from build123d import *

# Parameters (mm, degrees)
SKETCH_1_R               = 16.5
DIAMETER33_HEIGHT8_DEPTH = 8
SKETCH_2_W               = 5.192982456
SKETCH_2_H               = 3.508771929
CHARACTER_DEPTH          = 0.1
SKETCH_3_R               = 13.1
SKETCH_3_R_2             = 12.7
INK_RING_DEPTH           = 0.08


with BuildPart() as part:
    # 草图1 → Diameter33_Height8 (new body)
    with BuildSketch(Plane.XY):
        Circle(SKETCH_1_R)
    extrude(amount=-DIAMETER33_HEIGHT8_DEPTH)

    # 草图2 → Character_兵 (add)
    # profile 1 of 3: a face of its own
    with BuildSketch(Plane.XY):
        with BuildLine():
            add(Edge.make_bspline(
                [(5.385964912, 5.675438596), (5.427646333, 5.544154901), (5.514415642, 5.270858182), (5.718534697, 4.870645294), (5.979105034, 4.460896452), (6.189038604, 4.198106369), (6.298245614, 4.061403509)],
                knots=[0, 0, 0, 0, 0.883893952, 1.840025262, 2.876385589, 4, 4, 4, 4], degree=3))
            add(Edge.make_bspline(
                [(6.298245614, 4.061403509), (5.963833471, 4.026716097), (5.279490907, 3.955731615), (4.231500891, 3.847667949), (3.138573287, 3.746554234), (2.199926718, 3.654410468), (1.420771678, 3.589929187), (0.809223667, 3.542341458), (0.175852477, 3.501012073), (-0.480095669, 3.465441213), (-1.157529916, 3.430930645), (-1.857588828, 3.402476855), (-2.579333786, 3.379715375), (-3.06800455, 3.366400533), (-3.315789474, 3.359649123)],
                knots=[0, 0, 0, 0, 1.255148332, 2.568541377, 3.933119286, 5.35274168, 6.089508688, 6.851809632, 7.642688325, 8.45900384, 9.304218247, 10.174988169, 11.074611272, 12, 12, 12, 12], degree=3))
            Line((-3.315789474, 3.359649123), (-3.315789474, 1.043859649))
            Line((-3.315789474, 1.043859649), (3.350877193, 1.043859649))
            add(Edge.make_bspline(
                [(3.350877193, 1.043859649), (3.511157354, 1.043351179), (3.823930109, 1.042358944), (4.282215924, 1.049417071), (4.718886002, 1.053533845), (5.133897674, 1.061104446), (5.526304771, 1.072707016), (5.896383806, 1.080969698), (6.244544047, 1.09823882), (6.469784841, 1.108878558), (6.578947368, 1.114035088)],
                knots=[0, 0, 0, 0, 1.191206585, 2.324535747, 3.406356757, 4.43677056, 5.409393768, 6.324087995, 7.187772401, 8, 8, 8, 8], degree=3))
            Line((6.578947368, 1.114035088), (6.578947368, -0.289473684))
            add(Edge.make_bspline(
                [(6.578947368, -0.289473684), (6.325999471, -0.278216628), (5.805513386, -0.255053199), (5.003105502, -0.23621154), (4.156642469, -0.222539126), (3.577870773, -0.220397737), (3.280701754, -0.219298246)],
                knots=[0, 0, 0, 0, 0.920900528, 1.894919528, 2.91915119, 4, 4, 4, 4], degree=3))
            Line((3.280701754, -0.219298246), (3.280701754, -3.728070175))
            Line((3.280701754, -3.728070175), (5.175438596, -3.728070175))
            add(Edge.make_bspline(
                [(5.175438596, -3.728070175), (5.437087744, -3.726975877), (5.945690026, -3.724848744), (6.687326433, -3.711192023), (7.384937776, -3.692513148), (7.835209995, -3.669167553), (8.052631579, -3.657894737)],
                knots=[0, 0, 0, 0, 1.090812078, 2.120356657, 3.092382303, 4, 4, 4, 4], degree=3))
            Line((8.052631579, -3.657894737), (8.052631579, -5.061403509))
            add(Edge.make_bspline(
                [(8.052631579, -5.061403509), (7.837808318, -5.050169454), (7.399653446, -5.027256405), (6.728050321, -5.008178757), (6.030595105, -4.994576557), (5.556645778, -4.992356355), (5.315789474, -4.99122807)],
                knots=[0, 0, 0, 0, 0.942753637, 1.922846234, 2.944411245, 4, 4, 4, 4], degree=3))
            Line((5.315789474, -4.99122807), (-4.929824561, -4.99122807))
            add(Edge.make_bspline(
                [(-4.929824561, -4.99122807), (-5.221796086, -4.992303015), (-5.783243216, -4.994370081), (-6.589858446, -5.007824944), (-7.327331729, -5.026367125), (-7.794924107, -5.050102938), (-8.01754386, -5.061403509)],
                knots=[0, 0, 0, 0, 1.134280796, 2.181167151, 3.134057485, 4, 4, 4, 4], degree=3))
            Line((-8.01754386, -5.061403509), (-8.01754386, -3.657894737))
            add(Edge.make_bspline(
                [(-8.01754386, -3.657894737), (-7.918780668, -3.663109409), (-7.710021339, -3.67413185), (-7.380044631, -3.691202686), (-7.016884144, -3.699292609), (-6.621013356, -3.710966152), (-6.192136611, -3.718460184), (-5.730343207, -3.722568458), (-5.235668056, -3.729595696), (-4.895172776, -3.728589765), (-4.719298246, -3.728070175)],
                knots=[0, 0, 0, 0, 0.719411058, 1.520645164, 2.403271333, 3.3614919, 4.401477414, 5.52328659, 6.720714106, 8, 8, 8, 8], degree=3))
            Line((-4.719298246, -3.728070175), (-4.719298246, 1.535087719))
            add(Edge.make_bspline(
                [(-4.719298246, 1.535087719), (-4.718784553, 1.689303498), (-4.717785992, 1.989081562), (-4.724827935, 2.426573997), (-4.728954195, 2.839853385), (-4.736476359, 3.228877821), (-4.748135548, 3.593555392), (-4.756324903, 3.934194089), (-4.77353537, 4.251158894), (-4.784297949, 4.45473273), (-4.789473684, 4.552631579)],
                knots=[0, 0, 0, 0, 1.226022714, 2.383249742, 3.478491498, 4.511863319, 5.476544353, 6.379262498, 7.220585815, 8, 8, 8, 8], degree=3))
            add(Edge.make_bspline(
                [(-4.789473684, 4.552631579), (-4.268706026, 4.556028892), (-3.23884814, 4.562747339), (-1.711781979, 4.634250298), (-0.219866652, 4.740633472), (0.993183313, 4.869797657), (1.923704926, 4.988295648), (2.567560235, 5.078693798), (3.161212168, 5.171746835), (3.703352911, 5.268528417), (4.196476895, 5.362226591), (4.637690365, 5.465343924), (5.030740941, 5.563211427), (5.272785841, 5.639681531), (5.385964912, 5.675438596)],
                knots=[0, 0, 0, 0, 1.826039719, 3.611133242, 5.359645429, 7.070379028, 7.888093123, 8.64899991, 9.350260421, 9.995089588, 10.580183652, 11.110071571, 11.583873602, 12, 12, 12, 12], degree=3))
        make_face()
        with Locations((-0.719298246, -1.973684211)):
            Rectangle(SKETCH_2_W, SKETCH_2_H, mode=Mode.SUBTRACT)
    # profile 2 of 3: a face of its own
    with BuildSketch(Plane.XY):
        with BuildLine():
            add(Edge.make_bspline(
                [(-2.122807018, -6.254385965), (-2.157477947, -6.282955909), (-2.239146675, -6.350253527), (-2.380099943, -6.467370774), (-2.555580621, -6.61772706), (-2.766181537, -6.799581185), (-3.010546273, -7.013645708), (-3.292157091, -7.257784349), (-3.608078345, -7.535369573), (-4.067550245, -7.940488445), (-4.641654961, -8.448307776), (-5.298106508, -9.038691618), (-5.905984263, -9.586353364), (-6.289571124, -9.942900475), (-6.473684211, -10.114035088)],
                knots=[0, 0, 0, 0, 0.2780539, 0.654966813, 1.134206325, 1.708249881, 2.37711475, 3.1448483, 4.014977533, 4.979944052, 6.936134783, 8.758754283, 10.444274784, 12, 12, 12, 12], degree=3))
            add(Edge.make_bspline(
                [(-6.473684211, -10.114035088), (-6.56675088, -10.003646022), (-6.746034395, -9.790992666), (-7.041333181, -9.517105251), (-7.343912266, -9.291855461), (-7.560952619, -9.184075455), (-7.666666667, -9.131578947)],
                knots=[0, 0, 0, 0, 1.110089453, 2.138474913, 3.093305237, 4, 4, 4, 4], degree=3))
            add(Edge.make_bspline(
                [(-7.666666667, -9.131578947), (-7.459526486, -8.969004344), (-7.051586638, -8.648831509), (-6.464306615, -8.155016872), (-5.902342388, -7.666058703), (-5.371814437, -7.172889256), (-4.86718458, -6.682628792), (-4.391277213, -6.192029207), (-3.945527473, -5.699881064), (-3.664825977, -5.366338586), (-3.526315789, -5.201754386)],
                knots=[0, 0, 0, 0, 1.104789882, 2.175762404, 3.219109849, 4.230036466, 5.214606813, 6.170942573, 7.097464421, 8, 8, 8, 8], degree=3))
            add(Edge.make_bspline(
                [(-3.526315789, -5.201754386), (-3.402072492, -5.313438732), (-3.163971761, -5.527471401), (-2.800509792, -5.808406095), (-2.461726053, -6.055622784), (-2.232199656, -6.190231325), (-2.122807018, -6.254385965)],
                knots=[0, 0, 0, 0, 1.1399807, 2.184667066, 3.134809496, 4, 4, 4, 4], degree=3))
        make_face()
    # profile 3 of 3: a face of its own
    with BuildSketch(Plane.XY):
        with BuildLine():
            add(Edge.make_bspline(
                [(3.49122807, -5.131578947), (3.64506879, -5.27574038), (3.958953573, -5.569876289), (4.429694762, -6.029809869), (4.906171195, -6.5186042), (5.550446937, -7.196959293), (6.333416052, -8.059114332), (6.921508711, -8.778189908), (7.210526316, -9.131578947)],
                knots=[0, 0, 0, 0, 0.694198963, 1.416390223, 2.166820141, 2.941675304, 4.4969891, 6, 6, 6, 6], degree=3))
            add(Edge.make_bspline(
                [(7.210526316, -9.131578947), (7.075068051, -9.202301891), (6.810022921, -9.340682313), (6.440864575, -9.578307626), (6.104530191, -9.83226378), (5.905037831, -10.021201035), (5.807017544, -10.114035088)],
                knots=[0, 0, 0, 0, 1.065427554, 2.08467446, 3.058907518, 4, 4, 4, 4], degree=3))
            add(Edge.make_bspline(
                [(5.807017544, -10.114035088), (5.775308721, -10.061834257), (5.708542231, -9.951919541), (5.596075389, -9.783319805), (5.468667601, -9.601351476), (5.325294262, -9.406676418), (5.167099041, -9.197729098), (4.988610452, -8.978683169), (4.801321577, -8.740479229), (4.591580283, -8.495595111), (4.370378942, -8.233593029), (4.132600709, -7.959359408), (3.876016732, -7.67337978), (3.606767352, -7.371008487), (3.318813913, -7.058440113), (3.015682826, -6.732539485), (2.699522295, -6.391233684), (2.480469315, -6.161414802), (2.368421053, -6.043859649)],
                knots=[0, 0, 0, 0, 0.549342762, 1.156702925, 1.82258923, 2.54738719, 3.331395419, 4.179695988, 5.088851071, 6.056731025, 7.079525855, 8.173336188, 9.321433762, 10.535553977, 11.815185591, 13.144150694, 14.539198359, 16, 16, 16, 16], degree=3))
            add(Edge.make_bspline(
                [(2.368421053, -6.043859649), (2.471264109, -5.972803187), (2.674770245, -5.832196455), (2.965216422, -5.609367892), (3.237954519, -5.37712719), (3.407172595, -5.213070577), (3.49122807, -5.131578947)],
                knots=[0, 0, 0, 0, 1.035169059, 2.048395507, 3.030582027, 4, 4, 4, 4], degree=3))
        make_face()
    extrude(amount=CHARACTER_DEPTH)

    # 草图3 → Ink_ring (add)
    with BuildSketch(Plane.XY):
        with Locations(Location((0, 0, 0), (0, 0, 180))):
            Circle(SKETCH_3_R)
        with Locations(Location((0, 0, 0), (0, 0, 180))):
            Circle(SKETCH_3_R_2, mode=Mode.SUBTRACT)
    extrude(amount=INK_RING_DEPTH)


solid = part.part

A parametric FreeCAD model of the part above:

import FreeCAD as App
import Part
import Sketcher

V = App.Vector
Q = App.Units.Quantity

doc = App.newDocument("Part")
params = doc.addObject("Spreadsheet::Sheet", "Params")
for row, (alias, value) in enumerate([
    ("sketch1_diameter", "33 mm"),
    ("pad1_length", "8 mm"),
    ("pad2_length", "0.1 mm"),
    ("sketch3_diameter", "26.2 mm"),
    ("sketch3_diameter2", "25.4 mm"),
    ("pad3_length", "0.08 mm"),
], start=1):
    params.set(f"A{row}", alias)
    params.set(f"B{row}", "=" + value)
    params.setAlias(f"B{row}", alias)

body = doc.addObject("PartDesign::Body", "Body")

sketch1 = doc.addObject("Sketcher::SketchObject", "Sketch")
body.addObject(sketch1)
sketch1.AttachmentSupport = (doc.XY_Plane, [""])
sketch1.MapMode = "FlatFace"
sketch1.addGeometry(Part.Circle(V(0, 0, 0), V(0, 0, 1), 16), False)
sketch1.addConstraint([
    Sketcher.Constraint("Coincident", 0, 3, -1, 1),
    Sketcher.Constraint("Diameter", 0, Q("33 mm")),
])
sketch1.setExpression("Constraints[1]", "Params.sketch1_diameter")
pad1 = doc.addObject("PartDesign::Pad", "Pad")
body.addObject(pad1)
pad1.Profile = sketch1
pad1.setExpression("Length", "Params.pad1_length")
pad1.Reversed = True

sketch2 = doc.addObject("Sketcher::SketchObject", "Sketch001")
body.addObject(sketch2)
sketch2.AttachmentSupport = (doc.XY_Plane, [""])
sketch2.MapMode = "FlatFace"
sketch2.addGeometry([
    Part.BSplineCurve([V(5.385965, 5.675439, 0), V(5.427646, 5.544155, 0), V(5.514416, 5.270858, 0), V(5.718535, 4.870645, 0), V(5.979105, 4.460896, 0), V(6.189039, 4.198106, 0), V(6.298246, 4.061404, 0)], [4, 1, 1, 1, 4], [0, 0.883893952, 1.840025262, 2.876385589, 4], False, 3, [1, 1, 1, 1, 1, 1, 1], False),
    Part.BSplineCurve([V(-4.789474, 4.552632, 0), V(-4.268706, 4.556029, 0), V(-3.238848, 4.562747, 0), V(-1.711782, 4.63425, 0), V(-0.219867, 4.740633, 0), V(0.993183, 4.869798, 0), V(1.923705, 4.988296, 0), V(2.56756, 5.078694, 0), V(3.161212, 5.171747, 0), V(3.703353, 5.268528, 0), V(4.196477, 5.362227, 0), V(4.63769, 5.465344, 0), V(5.030741, 5.563211, 0), V(5.272786, 5.639682, 0), V(5.385965, 5.675439, 0)], [4, 1, 1, 1, 1, 1, 1, 1, 1, 1, 1, 1, 4], [0, 1.826039719, 3.611133242, 5.359645429, 7.070379028, 7.888093123, 8.64899991, 9.350260421, 9.995089588, 10.580183652, 11.110071571, 11.583873602, 12], False, 3, [1, 1, 1, 1, 1, 1, 1, 1, 1, 1, 1, 1, 1, 1, 1], False),
    Part.BSplineCurve([V(-4.719298, 1.535088, 0), V(-4.718785, 1.689303, 0), V(-4.717786, 1.989082, 0), V(-4.724828, 2.426574, 0), V(-4.728954, 2.839853, 0), V(-4.736476, 3.228878, 0), V(-4.748136, 3.593555, 0), V(-4.756325, 3.934194, 0), V(-4.773535, 4.251159, 0), V(-4.784298, 4.454733, 0), V(-4.789474, 4.552632, 0)], [4, 1, 1, 1, 1, 1, 1, 1, 4], [0, 1.226022714, 2.383249742, 3.478491498, 4.511863319, 5.476544353, 6.379262498, 7.220585815, 8], False, 3, [1, 1, 1, 1, 1, 1, 1, 1, 1, 1, 1], False),
    Part.LineSegment(V(-4.719298, 1.535088, 0), V(-4.719298, -3.72807, 0)),
    Part.BSplineCurve([V(-8.017544, -3.657895, 0), V(-7.918781, -3.663109, 0), V(-7.710021, -3.674132, 0), V(-7.380045, -3.691203, 0), V(-7.016884, -3.699293, 0), V(-6.621013, -3.710966, 0), V(-6.192137, -3.71846, 0), V(-5.730343, -3.722568, 0), V(-5.235668, -3.729596, 0), V(-4.895173, -3.72859, 0), V(-4.719298, -3.72807, 0)], [4, 1, 1, 1, 1, 1, 1, 1, 4], [0, 0.719411058, 1.520645164, 2.403271333, 3.3614919, 4.401477414, 5.52328659, 6.720714106, 8], False, 3, [1, 1, 1, 1, 1, 1, 1, 1, 1, 1, 1], False),
    Part.LineSegment(V(-8.017544, -3.657895, 0), V(-8.017544, -5.061404, 0)),
    Part.BSplineCurve([V(-4.929825, -4.991228, 0), V(-5.221796, -4.992303, 0), V(-5.783243, -4.99437, 0), V(-6.589858, -5.007825, 0), V(-7.327332, -5.026367, 0), V(-7.794924, -5.050103, 0), V(-8.017544, -5.061404, 0)], [4, 1, 1, 1, 4], [0, 1.134280796, 2.181167151, 3.134057485, 4], False, 3, [1, 1, 1, 1, 1, 1, 1], False),
    Part.LineSegment(V(-4.929825, -4.991228, 0), V(5.315789, -4.991228, 0)),
    Part.BSplineCurve([V(8.052632, -5.061404, 0), V(7.837808, -5.050169, 0), V(7.399653, -5.027256, 0), V(6.72805, -5.008179, 0), V(6.030595, -4.994577, 0), V(5.556646, -4.992356, 0), V(5.315789, -4.991228, 0)], [4, 1, 1, 1, 4], [0, 0.942753637, 1.922846234, 2.944411245, 4], False, 3, [1, 1, 1, 1, 1, 1, 1], False),
    Part.LineSegment(V(8.052632, -5.061404, 0), V(8.052632, -3.657895, 0)),
    Part.BSplineCurve([V(5.175439, -3.72807, 0), V(5.437088, -3.726976, 0), V(5.94569, -3.724849, 0), V(6.687326, -3.711192, 0), V(7.384938, -3.692513, 0), V(7.83521, -3.669168, 0), V(8.052632, -3.657895, 0)], [4, 1, 1, 1, 4], [0, 1.090812078, 2.120356657, 3.092382303, 4], False, 3, [1, 1, 1, 1, 1, 1, 1], False),
    Part.LineSegment(V(5.175439, -3.72807, 0), V(3.280702, -3.72807, 0)),
    Part.LineSegment(V(3.280702, -3.72807, 0), V(3.280702, -0.219298, 0)),
    Part.BSplineCurve([V(6.578947, -0.289474, 0), V(6.325999, -0.278217, 0), V(5.805513, -0.255053, 0), V(5.003106, -0.236212, 0), V(4.156642, -0.222539, 0), V(3.577871, -0.220398, 0), V(3.280702, -0.219298, 0)], [4, 1, 1, 1, 4], [0, 0.920900528, 1.894919528, 2.91915119, 4], False, 3, [1, 1, 1, 1, 1, 1, 1], False),
    Part.LineSegment(V(6.578947, -0.289474, 0), V(6.578947, 1.114035, 0)),
    Part.BSplineCurve([V(3.350877, 1.04386, 0), V(3.511157, 1.043351, 0), V(3.82393, 1.042359, 0), V(4.282216, 1.049417, 0), V(4.718886, 1.053534, 0), V(5.133898, 1.061104, 0), V(5.526305, 1.072707, 0), V(5.896384, 1.08097, 0), V(6.244544, 1.098239, 0), V(6.469785, 1.108879, 0), V(6.578947, 1.114035, 0)], [4, 1, 1, 1, 1, 1, 1, 1, 4], [0, 1.191206585, 2.324535747, 3.406356757, 4.43677056, 5.409393768, 6.324087995, 7.187772401, 8], False, 3, [1, 1, 1, 1, 1, 1, 1, 1, 1, 1, 1], False),
    Part.LineSegment(V(3.350877, 1.04386, 0), V(-3.315789, 1.04386, 0)),
    Part.LineSegment(V(-3.315789, 1.04386, 0), V(-3.315789, 3.359649, 0)),
    Part.BSplineCurve([V(6.298246, 4.061404, 0), V(5.963833, 4.026716, 0), V(5.279491, 3.955732, 0), V(4.231501, 3.847668, 0), V(3.138573, 3.746554, 0), V(2.199927, 3.65441, 0), V(1.420772, 3.589929, 0), V(0.809224, 3.542341, 0), V(0.175852, 3.501012, 0), V(-0.480096, 3.465441, 0), V(-1.15753, 3.430931, 0), V(-1.857589, 3.402477, 0), V(-2.579334, 3.379715, 0), V(-3.068005, 3.366401, 0), V(-3.315789, 3.359649, 0)], [4, 1, 1, 1, 1, 1, 1, 1, 1, 1, 1, 1, 4], [0, 1.255148332, 2.568541377, 3.933119286, 5.35274168, 6.089508688, 6.851809632, 7.642688325, 8.45900384, 9.304218247, 10.174988169, 11.074611272, 12], False, 3, [1, 1, 1, 1, 1, 1, 1, 1, 1, 1, 1, 1, 1, 1, 1], False),
    Part.LineSegment(V(-3.315789, -3.72807, 0), V(-3.315789, -0.219298, 0)),
    Part.LineSegment(V(-3.315789, -0.219298, 0), V(1.877193, -0.219298, 0)),
    Part.LineSegment(V(1.877193, -0.219298, 0), V(1.877193, -3.72807, 0)),
    Part.LineSegment(V(1.877193, -3.72807, 0), V(-3.315789, -3.72807, 0)),
    Part.BSplineCurve([V(-2.122807, -6.254386, 0), V(-2.157478, -6.282956, 0), V(-2.239147, -6.350254, 0), V(-2.3801, -6.467371, 0), V(-2.555581, -6.617727, 0), V(-2.766182, -6.799581, 0), V(-3.010546, -7.013646, 0), V(-3.292157, -7.257784, 0), V(-3.608078, -7.53537, 0), V(-4.06755, -7.940488, 0), V(-4.641655, -8.448308, 0), V(-5.298107, -9.038692, 0), V(-5.905984, -9.586353, 0), V(-6.289571, -9.9429, 0), V(-6.473684, -10.114035, 0)], [4, 1, 1, 1, 1, 1, 1, 1, 1, 1, 1, 1, 4], [0, 0.2780539, 0.654966813, 1.134206325, 1.708249881, 2.37711475, 3.1448483, 4.014977533, 4.979944052, 6.936134783, 8.758754283, 10.444274784, 12], False, 3, [1, 1, 1, 1, 1, 1, 1, 1, 1, 1, 1, 1, 1, 1, 1], False),
    Part.BSplineCurve([V(-3.526316, -5.201754, 0), V(-3.402072, -5.313439, 0), V(-3.163972, -5.527471, 0), V(-2.80051, -5.808406, 0), V(-2.461726, -6.055623, 0), V(-2.2322, -6.190231, 0), V(-2.122807, -6.254386, 0)], [4, 1, 1, 1, 4], [0, 1.1399807, 2.184667066, 3.134809496, 4], False, 3, [1, 1, 1, 1, 1, 1, 1], False),
    Part.BSplineCurve([V(-7.666667, -9.131579, 0), V(-7.459526, -8.969004, 0), V(-7.051587, -8.648832, 0), V(-6.464307, -8.155017, 0), V(-5.902342, -7.666059, 0), V(-5.371814, -7.172889, 0), V(-4.867185, -6.682629, 0), V(-4.391277, -6.192029, 0), V(-3.945527, -5.699881, 0), V(-3.664826, -5.366339, 0), V(-3.526316, -5.201754, 0)], [4, 1, 1, 1, 1, 1, 1, 1, 4], [0, 1.104789882, 2.175762404, 3.219109849, 4.230036466, 5.214606813, 6.170942573, 7.097464421, 8], False, 3, [1, 1, 1, 1, 1, 1, 1, 1, 1, 1, 1], False),
    Part.BSplineCurve([V(-6.473684, -10.114035, 0), V(-6.566751, -10.003646, 0), V(-6.746034, -9.790993, 0), V(-7.041333, -9.517105, 0), V(-7.343912, -9.291855, 0), V(-7.560953, -9.184075, 0), V(-7.666667, -9.131579, 0)], [4, 1, 1, 1, 4], [0, 1.110089453, 2.138474913, 3.093305237, 4], False, 3, [1, 1, 1, 1, 1, 1, 1], False),
    Part.BSplineCurve([V(3.491228, -5.131579, 0), V(3.645069, -5.27574, 0), V(3.958954, -5.569876, 0), V(4.429695, -6.02981, 0), V(4.906171, -6.518604, 0), V(5.550447, -7.196959, 0), V(6.333416, -8.059114, 0), V(6.921509, -8.77819, 0), V(7.210526, -9.131579, 0)], [4, 1, 1, 1, 1, 1, 4], [0, 0.694198963, 1.416390223, 2.166820141, 2.941675304, 4.4969891, 6], False, 3, [1, 1, 1, 1, 1, 1, 1, 1, 1], False),
    Part.BSplineCurve([V(2.368421, -6.04386, 0), V(2.471264, -5.972803, 0), V(2.67477, -5.832196, 0), V(2.965216, -5.609368, 0), V(3.237955, -5.377127, 0), V(3.407173, -5.213071, 0), V(3.491228, -5.131579, 0)], [4, 1, 1, 1, 4], [0, 1.035169059, 2.048395507, 3.030582027, 4], False, 3, [1, 1, 1, 1, 1, 1, 1], False),
    Part.BSplineCurve([V(5.807018, -10.114035, 0), V(5.775309, -10.061834, 0), V(5.708542, -9.95192, 0), V(5.596075, -9.78332, 0), V(5.468668, -9.601351, 0), V(5.325294, -9.406676, 0), V(5.167099, -9.197729, 0), V(4.98861, -8.978683, 0), V(4.801322, -8.740479, 0), V(4.59158, -8.495595, 0), V(4.370379, -8.233593, 0), V(4.132601, -7.959359, 0), V(3.876017, -7.67338, 0), V(3.606767, -7.371008, 0), V(3.318814, -7.05844, 0), V(3.015683, -6.732539, 0), V(2.699522, -6.391234, 0), V(2.480469, -6.161415, 0), V(2.368421, -6.04386, 0)], [4, 1, 1, 1, 1, 1, 1, 1, 1, 1, 1, 1, 1, 1, 1, 1, 4], [0, 0.549342762, 1.156702925, 1.82258923, 2.54738719, 3.331395419, 4.179695988, 5.088851071, 6.056731025, 7.079525855, 8.173336188, 9.321433762, 10.535553977, 11.815185591, 13.144150694, 14.539198359, 16], False, 3, [1, 1, 1, 1, 1, 1, 1, 1, 1, 1, 1, 1, 1, 1, 1, 1, 1, 1, 1], False),
    Part.BSplineCurve([V(7.210526, -9.131579, 0), V(7.075068, -9.202302, 0), V(6.810023, -9.340682, 0), V(6.440865, -9.578308, 0), V(6.10453, -9.832264, 0), V(5.905038, -10.021201, 0), V(5.807018, -10.114035, 0)], [4, 1, 1, 1, 4], [0, 1.065427554, 2.08467446, 3.058907518, 4], False, 3, [1, 1, 1, 1, 1, 1, 1], False),
], False)
sketch2.addConstraint([
    Sketcher.Constraint("Block", 0),
    Sketcher.Constraint("Block", 1),
    Sketcher.Constraint("Block", 2),
    Sketcher.Constraint("Block", 4),
    Sketcher.Constraint("Block", 6),
    Sketcher.Constraint("Block", 8),
    Sketcher.Constraint("Block", 10),
    Sketcher.Constraint("Block", 13),
    Sketcher.Constraint("Block", 15),
    Sketcher.Constraint("Block", 18),
    Sketcher.Constraint("Block", 23),
    Sketcher.Constraint("Block", 24),
    Sketcher.Constraint("Block", 25),
    Sketcher.Constraint("Block", 26),
    Sketcher.Constraint("Block", 27),
    Sketcher.Constraint("Block", 28),
    Sketcher.Constraint("Block", 29),
    Sketcher.Constraint("Block", 30),
    Sketcher.Constraint("Coincident", 2, 1, 3, 1),
    Sketcher.Constraint("Coincident", 3, 2, 4, 2),
    Sketcher.Constraint("Coincident", 4, 1, 5, 1),
    Sketcher.Constraint("Coincident", 5, 2, 6, 2),
    Sketcher.Constraint("Coincident", 6, 1, 7, 1),
    Sketcher.Constraint("Coincident", 7, 2, 8, 2),
    Sketcher.Constraint("Coincident", 8, 1, 9, 1),
    Sketcher.Constraint("Coincident", 9, 2, 10, 2),
    Sketcher.Constraint("Coincident", 10, 1, 11, 1),
    Sketcher.Constraint("Coincident", 11, 2, 12, 1),
    Sketcher.Constraint("Coincident", 12, 2, 13, 2),
    Sketcher.Constraint("Coincident", 13, 1, 14, 1),
    Sketcher.Constraint("Coincident", 14, 2, 15, 2),
    Sketcher.Constraint("Coincident", 15, 1, 16, 1),
    Sketcher.Constraint("Coincident", 16, 2, 17, 1),
    Sketcher.Constraint("Coincident", 17, 2, 18, 2),
    Sketcher.Constraint("Coincident", 19, 2, 20, 1),
    Sketcher.Constraint("Coincident", 20, 2, 21, 1),
    Sketcher.Constraint("Coincident", 21, 2, 22, 1),
    Sketcher.Constraint("Coincident", 22, 2, 19, 1),
    Sketcher.Constraint("Horizontal", 11),
    Sketcher.Constraint("Vertical", 12),
    Sketcher.Constraint("Horizontal", 16),
    Sketcher.Constraint("Vertical", 17),
    Sketcher.Constraint("Vertical", 19),
    Sketcher.Constraint("Horizontal", 20),
    Sketcher.Constraint("Vertical", 21),
    Sketcher.Constraint("Horizontal", 22),
    Sketcher.Constraint("Horizontal", 12, 2, 19, 2),
    Sketcher.Constraint("Horizontal", 11, 2, 21, 2),
    Sketcher.Constraint("Vertical", 17, 2, 19, 2),
    Sketcher.Constraint("DistanceX", 20, 1, 20, 2, Q("5.192982 mm")),
])
pad2 = doc.addObject("PartDesign::Pad", "Pad001")
body.addObject(pad2)
pad2.Profile = sketch2
pad2.setExpression("Length", "Params.pad2_length")

sketch3 = doc.addObject("Sketcher::SketchObject", "Sketch002")
body.addObject(sketch3)
sketch3.AttachmentSupport = (doc.XY_Plane, [""])
sketch3.MapMode = "FlatFace"
sketch3.addGeometry([
    Part.Circle(V(0, 0, 0), V(0, 0, 1), 13),
    Part.Circle(V(0, 0, 0), V(0, 0, 1), 13),
], False)
sketch3.addConstraint([
    Sketcher.Constraint("Coincident", 0, 3, -1, 1),
    Sketcher.Constraint("Coincident", 1, 3, -1, 1),
    Sketcher.Constraint("Diameter", 0, Q("26.2 mm")),
    Sketcher.Constraint("Diameter", 1, Q("25.4 mm")),
])
sketch3.setExpression("Constraints[2]", "Params.sketch3_diameter")
sketch3.setExpression("Constraints[3]", "Params.sketch3_diameter2")
pad3 = doc.addObject("PartDesign::Pad", "Pad002")
body.addObject(pad3)
pad3.Profile = sketch3
pad3.setExpression("Length", "Params.pad3_length")

doc.recompute()
